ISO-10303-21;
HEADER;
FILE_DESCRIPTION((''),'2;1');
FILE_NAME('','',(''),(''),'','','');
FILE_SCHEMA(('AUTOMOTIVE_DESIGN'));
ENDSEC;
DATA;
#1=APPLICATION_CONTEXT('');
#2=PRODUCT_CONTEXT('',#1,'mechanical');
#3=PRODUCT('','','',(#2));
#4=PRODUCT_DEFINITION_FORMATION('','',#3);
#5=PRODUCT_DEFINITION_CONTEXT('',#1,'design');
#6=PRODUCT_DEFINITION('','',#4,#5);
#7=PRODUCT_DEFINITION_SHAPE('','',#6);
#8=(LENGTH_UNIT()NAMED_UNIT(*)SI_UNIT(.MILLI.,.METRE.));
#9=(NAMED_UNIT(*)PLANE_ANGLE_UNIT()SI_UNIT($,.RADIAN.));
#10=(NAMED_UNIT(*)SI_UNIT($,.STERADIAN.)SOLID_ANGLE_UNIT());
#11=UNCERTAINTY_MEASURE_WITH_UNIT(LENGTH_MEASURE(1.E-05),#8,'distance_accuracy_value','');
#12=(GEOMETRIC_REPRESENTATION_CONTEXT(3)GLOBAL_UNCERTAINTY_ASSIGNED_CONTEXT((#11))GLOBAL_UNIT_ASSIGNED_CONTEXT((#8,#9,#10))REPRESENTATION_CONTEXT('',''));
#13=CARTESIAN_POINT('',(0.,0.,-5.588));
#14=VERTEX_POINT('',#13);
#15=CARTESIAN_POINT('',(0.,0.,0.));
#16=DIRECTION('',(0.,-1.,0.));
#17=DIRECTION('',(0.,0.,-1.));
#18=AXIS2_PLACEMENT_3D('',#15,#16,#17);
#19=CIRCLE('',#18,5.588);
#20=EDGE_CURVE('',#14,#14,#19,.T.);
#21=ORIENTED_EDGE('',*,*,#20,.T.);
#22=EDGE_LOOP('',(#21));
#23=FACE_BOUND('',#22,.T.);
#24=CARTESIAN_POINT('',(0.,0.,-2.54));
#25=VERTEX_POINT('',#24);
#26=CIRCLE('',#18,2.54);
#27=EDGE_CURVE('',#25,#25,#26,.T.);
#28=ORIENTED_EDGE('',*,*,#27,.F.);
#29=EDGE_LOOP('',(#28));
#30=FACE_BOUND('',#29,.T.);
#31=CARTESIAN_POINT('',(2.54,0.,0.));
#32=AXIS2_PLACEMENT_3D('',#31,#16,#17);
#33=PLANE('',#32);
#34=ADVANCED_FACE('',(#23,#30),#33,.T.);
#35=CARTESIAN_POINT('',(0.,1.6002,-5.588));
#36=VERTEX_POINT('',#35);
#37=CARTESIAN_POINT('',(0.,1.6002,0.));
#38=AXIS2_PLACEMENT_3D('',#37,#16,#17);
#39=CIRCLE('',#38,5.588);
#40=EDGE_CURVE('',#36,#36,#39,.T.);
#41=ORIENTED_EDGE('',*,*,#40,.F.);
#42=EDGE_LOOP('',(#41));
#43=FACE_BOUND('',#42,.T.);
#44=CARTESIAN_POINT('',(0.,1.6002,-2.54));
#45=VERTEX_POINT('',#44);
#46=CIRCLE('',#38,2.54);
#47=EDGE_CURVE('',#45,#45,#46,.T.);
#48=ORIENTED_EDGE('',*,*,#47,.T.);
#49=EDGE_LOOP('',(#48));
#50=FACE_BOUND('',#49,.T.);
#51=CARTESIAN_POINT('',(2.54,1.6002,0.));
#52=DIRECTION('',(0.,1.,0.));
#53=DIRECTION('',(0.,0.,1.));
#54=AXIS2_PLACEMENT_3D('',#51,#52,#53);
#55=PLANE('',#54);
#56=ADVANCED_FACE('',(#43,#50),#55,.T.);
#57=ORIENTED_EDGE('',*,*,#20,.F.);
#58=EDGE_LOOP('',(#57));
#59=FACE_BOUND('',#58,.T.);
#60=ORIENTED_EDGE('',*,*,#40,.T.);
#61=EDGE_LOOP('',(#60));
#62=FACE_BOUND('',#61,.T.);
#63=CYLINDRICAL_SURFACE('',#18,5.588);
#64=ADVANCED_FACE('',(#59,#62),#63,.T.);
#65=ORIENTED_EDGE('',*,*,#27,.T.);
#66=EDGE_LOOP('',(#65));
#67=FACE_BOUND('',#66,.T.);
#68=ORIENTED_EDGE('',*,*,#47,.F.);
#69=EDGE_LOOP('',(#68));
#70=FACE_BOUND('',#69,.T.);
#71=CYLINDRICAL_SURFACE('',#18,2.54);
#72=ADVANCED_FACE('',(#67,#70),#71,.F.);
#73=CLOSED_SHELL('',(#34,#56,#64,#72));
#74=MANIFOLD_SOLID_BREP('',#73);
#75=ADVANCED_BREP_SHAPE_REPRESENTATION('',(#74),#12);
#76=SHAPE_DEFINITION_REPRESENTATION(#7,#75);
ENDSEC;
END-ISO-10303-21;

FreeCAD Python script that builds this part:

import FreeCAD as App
import Part
import Sketcher

V = App.Vector
Q = App.Units.Quantity


def add_polygon(sketch, points):
    """Adds a closed chain of lines whose ends are joined by coincident constraints."""
    first, n = sketch.GeometryCount, len(points)
    for a, b in zip(points, points[1:] + points[:1]):
        sketch.addGeometry(Part.LineSegment(App.Vector(*a, 0), App.Vector(*b, 0)), False)
    for i in range(n):
        sketch.addConstraint(Sketcher.Constraint("Coincident", first + i, 2, first + (i + 1) % n, 1))

doc = App.newDocument("Part")
body = doc.addObject("PartDesign::Body", "Body")

# Sketch on XY plane
sketch1 = body.newObject("Sketcher::SketchObject", "Sketch")
sketch1.AttachmentSupport = (doc.getObject("XY_Plane"), [""])
sketch1.MapMode = "FlatFace"
add_polygon(sketch1, [(2.5, 1.6), (2.5, 0), (5.6, 0), (5.6, 1.6)])  # lines 0-3
sketch1.addConstraint([
    Sketcher.Constraint("Vertical", 0),
    Sketcher.Constraint("Horizontal", 1),
    Sketcher.Constraint("Vertical", 2),
    Sketcher.Constraint("Horizontal", 3),
    Sketcher.Constraint("PointOnObject", 0, 2, -1),
    Sketcher.Constraint("DistanceX", 1, 1, 1, 2, Q("0.12 in")),
    Sketcher.Constraint("DistanceX", -1, 1, 0, 2, Q("0.1 in")),
    Sketcher.Constraint("DistanceY", 0, 2, 0, 1, Q("0.063 in")),
])
revolution = body.newObject("PartDesign::Revolution", "Revolution")
revolution.Profile = sketch1
revolution.ReferenceAxis = (sketch1, ["V_Axis"])
revolution.Angle = 360

doc.recompute()
